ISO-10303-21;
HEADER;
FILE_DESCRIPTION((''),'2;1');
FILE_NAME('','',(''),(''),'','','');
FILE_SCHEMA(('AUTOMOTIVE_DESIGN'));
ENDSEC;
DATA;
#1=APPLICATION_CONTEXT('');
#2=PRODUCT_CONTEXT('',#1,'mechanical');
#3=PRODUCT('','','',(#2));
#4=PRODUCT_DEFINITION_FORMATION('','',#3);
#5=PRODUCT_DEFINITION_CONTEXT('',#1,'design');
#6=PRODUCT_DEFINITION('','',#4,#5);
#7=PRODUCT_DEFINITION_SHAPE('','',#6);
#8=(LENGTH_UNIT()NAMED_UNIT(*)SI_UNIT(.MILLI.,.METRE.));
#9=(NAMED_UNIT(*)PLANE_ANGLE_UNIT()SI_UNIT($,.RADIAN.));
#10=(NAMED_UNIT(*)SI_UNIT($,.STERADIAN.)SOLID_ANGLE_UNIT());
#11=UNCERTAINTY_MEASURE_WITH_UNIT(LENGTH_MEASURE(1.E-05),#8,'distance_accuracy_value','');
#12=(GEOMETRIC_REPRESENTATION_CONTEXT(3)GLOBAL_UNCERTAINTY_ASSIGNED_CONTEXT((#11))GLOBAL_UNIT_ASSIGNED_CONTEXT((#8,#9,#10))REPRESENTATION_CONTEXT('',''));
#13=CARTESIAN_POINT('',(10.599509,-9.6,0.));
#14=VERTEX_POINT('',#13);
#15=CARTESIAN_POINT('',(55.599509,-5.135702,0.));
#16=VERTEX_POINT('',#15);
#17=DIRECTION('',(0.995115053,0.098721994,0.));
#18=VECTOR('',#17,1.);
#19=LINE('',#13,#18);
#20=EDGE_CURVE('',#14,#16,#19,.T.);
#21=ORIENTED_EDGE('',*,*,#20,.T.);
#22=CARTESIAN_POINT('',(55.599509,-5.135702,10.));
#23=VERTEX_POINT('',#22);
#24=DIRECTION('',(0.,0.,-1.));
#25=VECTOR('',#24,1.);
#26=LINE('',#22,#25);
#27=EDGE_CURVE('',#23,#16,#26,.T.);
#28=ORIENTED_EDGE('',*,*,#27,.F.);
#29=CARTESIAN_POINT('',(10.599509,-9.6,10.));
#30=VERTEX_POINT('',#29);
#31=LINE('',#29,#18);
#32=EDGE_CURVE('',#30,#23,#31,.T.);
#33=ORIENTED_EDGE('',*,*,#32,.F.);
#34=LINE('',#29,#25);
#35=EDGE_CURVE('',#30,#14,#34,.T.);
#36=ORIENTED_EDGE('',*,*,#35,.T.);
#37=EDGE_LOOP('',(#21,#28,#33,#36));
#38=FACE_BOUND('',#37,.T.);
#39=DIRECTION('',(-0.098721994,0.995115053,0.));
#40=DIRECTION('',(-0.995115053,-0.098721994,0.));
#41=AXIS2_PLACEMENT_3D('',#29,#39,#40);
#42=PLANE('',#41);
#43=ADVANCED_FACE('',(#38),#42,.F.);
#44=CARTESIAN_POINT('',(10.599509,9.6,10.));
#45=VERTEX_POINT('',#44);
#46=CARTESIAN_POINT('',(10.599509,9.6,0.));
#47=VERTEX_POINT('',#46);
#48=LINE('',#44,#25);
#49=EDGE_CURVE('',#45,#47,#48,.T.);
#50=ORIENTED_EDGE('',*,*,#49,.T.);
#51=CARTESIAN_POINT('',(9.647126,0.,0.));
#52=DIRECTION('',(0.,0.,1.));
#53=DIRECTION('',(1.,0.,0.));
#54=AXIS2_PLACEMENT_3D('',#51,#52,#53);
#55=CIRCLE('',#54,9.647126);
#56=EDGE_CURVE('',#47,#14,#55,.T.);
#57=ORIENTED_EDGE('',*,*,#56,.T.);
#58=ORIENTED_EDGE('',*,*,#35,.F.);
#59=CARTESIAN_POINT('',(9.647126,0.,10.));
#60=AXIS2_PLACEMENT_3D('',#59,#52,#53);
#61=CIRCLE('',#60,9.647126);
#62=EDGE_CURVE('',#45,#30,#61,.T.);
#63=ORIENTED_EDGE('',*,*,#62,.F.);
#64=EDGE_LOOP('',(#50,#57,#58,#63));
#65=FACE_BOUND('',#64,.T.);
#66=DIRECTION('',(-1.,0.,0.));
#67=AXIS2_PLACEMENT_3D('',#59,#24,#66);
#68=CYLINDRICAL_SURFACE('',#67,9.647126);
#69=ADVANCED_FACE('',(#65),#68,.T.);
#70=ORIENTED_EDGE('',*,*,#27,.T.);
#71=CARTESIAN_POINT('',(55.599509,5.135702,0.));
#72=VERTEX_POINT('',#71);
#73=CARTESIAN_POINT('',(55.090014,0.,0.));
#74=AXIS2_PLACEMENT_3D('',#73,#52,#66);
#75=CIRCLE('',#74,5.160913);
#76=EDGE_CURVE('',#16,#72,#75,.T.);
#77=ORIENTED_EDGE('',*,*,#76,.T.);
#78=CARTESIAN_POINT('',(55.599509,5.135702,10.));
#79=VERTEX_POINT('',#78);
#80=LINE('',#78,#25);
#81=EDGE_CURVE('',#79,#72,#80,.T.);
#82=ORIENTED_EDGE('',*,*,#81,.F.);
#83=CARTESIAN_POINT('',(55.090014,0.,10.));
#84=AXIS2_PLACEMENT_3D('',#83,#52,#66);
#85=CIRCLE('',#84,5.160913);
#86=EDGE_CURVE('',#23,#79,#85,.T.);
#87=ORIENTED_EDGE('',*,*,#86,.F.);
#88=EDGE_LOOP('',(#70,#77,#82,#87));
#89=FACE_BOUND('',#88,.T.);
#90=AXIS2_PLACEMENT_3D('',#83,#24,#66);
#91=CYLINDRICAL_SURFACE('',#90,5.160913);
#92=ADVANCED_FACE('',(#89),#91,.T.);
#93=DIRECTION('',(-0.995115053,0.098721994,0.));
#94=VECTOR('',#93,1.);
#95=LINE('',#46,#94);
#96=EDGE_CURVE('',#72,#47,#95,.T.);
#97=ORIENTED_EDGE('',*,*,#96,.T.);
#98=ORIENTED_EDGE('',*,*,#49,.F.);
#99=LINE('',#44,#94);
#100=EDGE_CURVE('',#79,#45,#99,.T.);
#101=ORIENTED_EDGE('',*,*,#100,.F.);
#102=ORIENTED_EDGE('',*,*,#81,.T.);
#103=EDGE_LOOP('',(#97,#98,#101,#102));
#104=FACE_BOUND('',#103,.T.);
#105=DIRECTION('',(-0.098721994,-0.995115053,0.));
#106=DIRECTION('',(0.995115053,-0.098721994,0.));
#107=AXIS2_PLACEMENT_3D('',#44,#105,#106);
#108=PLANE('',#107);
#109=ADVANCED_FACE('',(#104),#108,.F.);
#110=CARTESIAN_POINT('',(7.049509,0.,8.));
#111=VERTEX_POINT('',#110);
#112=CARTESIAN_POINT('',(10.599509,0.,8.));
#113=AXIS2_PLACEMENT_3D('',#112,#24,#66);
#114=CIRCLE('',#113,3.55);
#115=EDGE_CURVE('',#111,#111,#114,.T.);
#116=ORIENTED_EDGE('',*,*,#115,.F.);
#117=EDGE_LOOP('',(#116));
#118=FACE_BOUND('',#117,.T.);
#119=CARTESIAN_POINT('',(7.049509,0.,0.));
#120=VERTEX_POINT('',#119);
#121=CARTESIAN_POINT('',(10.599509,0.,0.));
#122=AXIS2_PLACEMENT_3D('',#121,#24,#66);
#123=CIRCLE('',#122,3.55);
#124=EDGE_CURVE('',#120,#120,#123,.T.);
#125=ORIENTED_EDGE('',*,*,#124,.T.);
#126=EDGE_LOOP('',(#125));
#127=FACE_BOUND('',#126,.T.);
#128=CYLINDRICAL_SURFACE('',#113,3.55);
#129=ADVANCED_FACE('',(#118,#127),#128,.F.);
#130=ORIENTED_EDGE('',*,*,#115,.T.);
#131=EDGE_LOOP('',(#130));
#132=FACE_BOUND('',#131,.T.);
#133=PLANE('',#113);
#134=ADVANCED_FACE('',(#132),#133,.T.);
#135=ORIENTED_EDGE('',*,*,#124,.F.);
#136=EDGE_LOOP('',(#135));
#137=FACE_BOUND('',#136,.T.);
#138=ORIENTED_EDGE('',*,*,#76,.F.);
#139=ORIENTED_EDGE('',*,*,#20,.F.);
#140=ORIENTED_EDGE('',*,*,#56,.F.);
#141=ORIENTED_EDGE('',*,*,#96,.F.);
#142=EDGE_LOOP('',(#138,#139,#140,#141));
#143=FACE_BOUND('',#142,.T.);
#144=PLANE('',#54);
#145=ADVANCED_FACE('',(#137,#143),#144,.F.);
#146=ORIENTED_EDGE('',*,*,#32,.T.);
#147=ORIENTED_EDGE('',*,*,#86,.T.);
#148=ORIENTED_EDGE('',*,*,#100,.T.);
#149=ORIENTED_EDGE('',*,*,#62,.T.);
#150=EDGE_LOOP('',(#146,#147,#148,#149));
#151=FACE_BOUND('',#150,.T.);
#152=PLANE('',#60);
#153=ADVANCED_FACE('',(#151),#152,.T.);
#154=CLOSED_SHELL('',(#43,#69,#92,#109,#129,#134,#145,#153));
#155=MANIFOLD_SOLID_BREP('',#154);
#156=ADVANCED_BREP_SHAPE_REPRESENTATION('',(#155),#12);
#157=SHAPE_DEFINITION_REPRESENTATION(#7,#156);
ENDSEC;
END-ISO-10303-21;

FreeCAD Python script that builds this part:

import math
import FreeCAD as App
import Part
import Sketcher
Q = App.Units.Quantity

doc = App.newDocument("Part")
body = doc.addObject("PartDesign::Body", "Body")

sketch1 = doc.addObject("Sketcher::SketchObject", "Sketch")
body.addObject(sketch1)
sketch1.AttachmentSupport = (doc.XY_Plane, [""])
sketch1.MapMode = "FlatFace"
sketch1.addGeometry(Part.LineSegment(App.Vector(56, 5, 0), App.Vector(11, 10, 0)), False)
sketch1.addGeometry(Part.ArcOfCircle(Part.Circle(App.Vector(10, 0, 0), App.Vector(0, 0, 1), 10), math.radians(84), math.radians(276)), False)
sketch1.addGeometry(Part.LineSegment(App.Vector(11, -10, 0), App.Vector(56, -5, 0)), False)
sketch1.addGeometry(Part.ArcOfCircle(Part.Circle(App.Vector(55, 0, 0), App.Vector(0, 0, 1), 5), math.radians(-84), math.radians(84)), False)
sketch1.addConstraint(Sketcher.Constraint("Tangent", 0, 2, 1, 1))
sketch1.addConstraint(Sketcher.Constraint("Tangent", 1, 2, 2, 1))
sketch1.addConstraint(Sketcher.Constraint("Tangent", 2, 2, 3, 1))
sketch1.addConstraint(Sketcher.Constraint("Tangent", 3, 2, 0, 1))
sketch1.addConstraint(Sketcher.Constraint("Symmetric", 0, 2, 1, 2, -1))
sketch1.addConstraint(Sketcher.Constraint("DistanceX", 1, 2, 2, 2, Q("45 mm")))
sketch1.addConstraint(Sketcher.Constraint("DistanceY", -1, 1, 0, 2, Q("9.6 mm")))
sketch1.addConstraint(Sketcher.Constraint("Radius", 1, Q("9.647126 mm")))
sketch1.addConstraint(Sketcher.Constraint("DistanceX", -1, 1, 0, 2, Q("10.599509 mm")))
pad1 = doc.addObject("PartDesign::Pad", "Pad")
body.addObject(pad1)
pad1.Profile = sketch1
pad1.Length = 10

sketch2 = doc.addObject("Sketcher::SketchObject", "Sketch001")
body.addObject(sketch2)
sketch2.AttachmentSupport = (doc.XY_Plane, [""])
sketch2.MapMode = "FlatFace"
sketch2.addGeometry(Part.Circle(App.Vector(10.6, 0, 0), App.Vector(0, 0, 1), 3.5), False)
sketch2.addConstraint(Sketcher.Constraint("PointOnObject", 0, 3, -1))
sketch2.addConstraint(Sketcher.Constraint("Diameter", 0, Q("7.1 mm")))
sketch2.addConstraint(Sketcher.Constraint("DistanceX", -1, 1, 0, 3, Q("10.599509 mm")))
pocket1 = doc.addObject("PartDesign::Pocket", "Pocket")
body.addObject(pocket1)
pocket1.Profile = sketch2
pocket1.Length = 8
pocket1.Reversed = True

doc.recompute()
